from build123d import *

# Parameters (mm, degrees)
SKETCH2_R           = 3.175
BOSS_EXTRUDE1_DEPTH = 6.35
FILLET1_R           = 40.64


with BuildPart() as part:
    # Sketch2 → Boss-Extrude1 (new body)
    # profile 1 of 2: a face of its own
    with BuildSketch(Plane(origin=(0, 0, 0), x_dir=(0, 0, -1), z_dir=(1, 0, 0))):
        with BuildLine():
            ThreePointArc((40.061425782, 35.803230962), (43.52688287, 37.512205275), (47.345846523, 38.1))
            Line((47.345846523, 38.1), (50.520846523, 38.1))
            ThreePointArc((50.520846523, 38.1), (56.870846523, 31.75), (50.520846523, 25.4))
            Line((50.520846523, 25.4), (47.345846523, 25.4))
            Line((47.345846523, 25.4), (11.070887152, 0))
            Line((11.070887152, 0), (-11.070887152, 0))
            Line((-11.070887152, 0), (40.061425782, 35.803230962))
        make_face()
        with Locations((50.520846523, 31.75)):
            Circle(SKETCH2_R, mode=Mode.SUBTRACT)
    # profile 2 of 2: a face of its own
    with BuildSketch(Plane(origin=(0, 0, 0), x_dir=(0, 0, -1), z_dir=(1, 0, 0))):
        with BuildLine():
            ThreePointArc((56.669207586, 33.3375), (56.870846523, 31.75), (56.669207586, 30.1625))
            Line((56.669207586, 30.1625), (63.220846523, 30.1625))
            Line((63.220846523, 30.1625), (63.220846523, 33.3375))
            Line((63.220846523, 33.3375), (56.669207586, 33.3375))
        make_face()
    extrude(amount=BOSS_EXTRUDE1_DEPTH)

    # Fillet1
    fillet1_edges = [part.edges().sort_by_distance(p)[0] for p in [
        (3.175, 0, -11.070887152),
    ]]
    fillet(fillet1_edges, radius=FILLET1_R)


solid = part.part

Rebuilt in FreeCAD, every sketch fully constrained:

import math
import FreeCAD as App
import Part
import Sketcher

V = App.Vector
Q = App.Units.Quantity


def edges_at(feature, points):
    """Names of the edges that pass closest to the given points."""
    edges = feature.Shape.Edges
    near = lambda p: min(range(len(edges)), key=lambda i: edges[i].distToShape(Part.Vertex(*p))[0])
    return sorted({f"Edge{near(p) + 1}" for p in points})

doc = App.newDocument("Part")
body = doc.addObject("PartDesign::Body", "Body")

# Sketch on YZ plane
sketch1 = body.newObject("Sketcher::SketchObject", "Sketch")
sketch1.AttachmentSupport = (doc.getObject("YZ_Plane"), [""])
sketch1.MapMode = "FlatFace"
sketch1.addGeometry(Part.ArcOfCircle(Part.Circle(V(25.4, -47.345847, 0), V(0, 0, 1), 12.7), math.radians(0), math.radians(35)), False)
sketch1.addGeometry(Part.LineSegment(V(35.803231, -40.061426, 0), V(0, 11.070887, 0)), False)
sketch1.addGeometry(Part.LineSegment(V(0, 11.070887, 0), V(0, -11.070887, 0)), False)
sketch1.addGeometry(Part.LineSegment(V(0, -11.070887, 0), V(25.4, -47.345847, 0)), False)
sketch1.addGeometry(Part.LineSegment(V(25.4, -47.345847, 0), V(25.4, -50.520847, 0)), False)
sketch1.addGeometry(Part.ArcOfCircle(Part.Circle(V(31.75, -50.520847, 0), V(0, 0, 1), 6.35), math.radians(180), math.radians(255.522488)), False)
sketch1.addGeometry(Part.LineSegment(V(30.1625, -56.669208, 0), V(30.1625, -63.220847, 0)), False)
sketch1.addGeometry(Part.LineSegment(V(30.1625, -63.220847, 0), V(33.3375, -63.220847, 0)), False)
sketch1.addGeometry(Part.LineSegment(V(33.3375, -63.220847, 0), V(33.3375, -56.669208, 0)), False)
sketch1.addGeometry(Part.ArcOfCircle(Part.Circle(V(31.75, -50.520847, 0), V(0, 0, 1), 6.35), math.radians(-75.522488), math.radians(0)), False)
sketch1.addGeometry(Part.LineSegment(V(38.1, -50.520847, 0), V(38.1, -47.345847, 0)), False)
sketch1.addGeometry(Part.Circle(V(31.75, -50.520847, 0), V(0, 0, 1), 3.175), False)
sketch1.addConstraint(Sketcher.Constraint("Tangent", 0, 2, 1, 1))
sketch1.addConstraint(Sketcher.Constraint("Coincident", 1, 2, 2, 1))
sketch1.addConstraint(Sketcher.Constraint("Coincident", 2, 2, 3, 1))
sketch1.addConstraint(Sketcher.Constraint("Coincident", 3, 2, 4, 1))
sketch1.addConstraint(Sketcher.Constraint("Tangent", 4, 2, 5, 1))
sketch1.addConstraint(Sketcher.Constraint("Coincident", 5, 2, 6, 1))
sketch1.addConstraint(Sketcher.Constraint("Coincident", 6, 2, 7, 1))
sketch1.addConstraint(Sketcher.Constraint("Coincident", 7, 2, 8, 1))
sketch1.addConstraint(Sketcher.Constraint("Coincident", 8, 2, 9, 1))
sketch1.addConstraint(Sketcher.Constraint("Tangent", 9, 2, 10, 1))
sketch1.addConstraint(Sketcher.Constraint("Tangent", 10, 2, 0, 1))
sketch1.addConstraint(Sketcher.Constraint("Vertical", 2))
sketch1.addConstraint(Sketcher.Constraint("Vertical", 4))
sketch1.addConstraint(Sketcher.Constraint("Vertical", 6))
sketch1.addConstraint(Sketcher.Constraint("Horizontal", 7))
sketch1.addConstraint(Sketcher.Constraint("Vertical", 8))
sketch1.addConstraint(Sketcher.Constraint("Vertical", 10))
sketch1.addConstraint(Sketcher.Constraint("Coincident", 9, 3, 5, 3))
sketch1.addConstraint(Sketcher.Constraint("Coincident", 11, 3, 5, 3))
sketch1.addConstraint(Sketcher.Constraint("Coincident", 3, 2, 0, 3))
sketch1.addConstraint(Sketcher.Constraint("Equal", 5, 9))
sketch1.addConstraint(Sketcher.Constraint("Symmetric", 1, 2, 2, 2, -1, 1))
sketch1.addConstraint(Sketcher.Constraint("Parallel", 1, 3))
sketch1.addConstraint(Sketcher.Constraint("Horizontal", 5, 2, 8, 2))
sketch1.addConstraint(Sketcher.Constraint("Equal", 7, 4))
sketch1.addConstraint(Sketcher.Constraint("Radius", 0, Q("0.5 in")))
sketch1.addConstraint(Sketcher.Constraint("Diameter", 11, Q("0.25 in")))
sketch1.addConstraint(Sketcher.Constraint("DistanceX", -1, 1, 0, 3, Q("1 in")))
sketch1.addConstraint(Sketcher.Constraint("Angle", 1, Q("125 deg")))
sketch1.addConstraint(Sketcher.Constraint("DistanceY", 6, 2, 5, 3, Q("0.5 in")))
sketch1.addConstraint(Sketcher.Constraint("DistanceX", 7, 1, 7, 2, Q("0.125 in")))
pad1 = body.newObject("PartDesign::Pad", "Pad")
pad1.Profile = sketch1
pad1.Length = Q("0.25 in")
doc.recompute()

fillet = body.newObject("PartDesign::Fillet", "Fillet")
fillet.Base = (pad1, edges_at(pad1, [(3.175, 0, -11.071)]))
fillet.Radius = Q("1.6 in")

doc.recompute()
